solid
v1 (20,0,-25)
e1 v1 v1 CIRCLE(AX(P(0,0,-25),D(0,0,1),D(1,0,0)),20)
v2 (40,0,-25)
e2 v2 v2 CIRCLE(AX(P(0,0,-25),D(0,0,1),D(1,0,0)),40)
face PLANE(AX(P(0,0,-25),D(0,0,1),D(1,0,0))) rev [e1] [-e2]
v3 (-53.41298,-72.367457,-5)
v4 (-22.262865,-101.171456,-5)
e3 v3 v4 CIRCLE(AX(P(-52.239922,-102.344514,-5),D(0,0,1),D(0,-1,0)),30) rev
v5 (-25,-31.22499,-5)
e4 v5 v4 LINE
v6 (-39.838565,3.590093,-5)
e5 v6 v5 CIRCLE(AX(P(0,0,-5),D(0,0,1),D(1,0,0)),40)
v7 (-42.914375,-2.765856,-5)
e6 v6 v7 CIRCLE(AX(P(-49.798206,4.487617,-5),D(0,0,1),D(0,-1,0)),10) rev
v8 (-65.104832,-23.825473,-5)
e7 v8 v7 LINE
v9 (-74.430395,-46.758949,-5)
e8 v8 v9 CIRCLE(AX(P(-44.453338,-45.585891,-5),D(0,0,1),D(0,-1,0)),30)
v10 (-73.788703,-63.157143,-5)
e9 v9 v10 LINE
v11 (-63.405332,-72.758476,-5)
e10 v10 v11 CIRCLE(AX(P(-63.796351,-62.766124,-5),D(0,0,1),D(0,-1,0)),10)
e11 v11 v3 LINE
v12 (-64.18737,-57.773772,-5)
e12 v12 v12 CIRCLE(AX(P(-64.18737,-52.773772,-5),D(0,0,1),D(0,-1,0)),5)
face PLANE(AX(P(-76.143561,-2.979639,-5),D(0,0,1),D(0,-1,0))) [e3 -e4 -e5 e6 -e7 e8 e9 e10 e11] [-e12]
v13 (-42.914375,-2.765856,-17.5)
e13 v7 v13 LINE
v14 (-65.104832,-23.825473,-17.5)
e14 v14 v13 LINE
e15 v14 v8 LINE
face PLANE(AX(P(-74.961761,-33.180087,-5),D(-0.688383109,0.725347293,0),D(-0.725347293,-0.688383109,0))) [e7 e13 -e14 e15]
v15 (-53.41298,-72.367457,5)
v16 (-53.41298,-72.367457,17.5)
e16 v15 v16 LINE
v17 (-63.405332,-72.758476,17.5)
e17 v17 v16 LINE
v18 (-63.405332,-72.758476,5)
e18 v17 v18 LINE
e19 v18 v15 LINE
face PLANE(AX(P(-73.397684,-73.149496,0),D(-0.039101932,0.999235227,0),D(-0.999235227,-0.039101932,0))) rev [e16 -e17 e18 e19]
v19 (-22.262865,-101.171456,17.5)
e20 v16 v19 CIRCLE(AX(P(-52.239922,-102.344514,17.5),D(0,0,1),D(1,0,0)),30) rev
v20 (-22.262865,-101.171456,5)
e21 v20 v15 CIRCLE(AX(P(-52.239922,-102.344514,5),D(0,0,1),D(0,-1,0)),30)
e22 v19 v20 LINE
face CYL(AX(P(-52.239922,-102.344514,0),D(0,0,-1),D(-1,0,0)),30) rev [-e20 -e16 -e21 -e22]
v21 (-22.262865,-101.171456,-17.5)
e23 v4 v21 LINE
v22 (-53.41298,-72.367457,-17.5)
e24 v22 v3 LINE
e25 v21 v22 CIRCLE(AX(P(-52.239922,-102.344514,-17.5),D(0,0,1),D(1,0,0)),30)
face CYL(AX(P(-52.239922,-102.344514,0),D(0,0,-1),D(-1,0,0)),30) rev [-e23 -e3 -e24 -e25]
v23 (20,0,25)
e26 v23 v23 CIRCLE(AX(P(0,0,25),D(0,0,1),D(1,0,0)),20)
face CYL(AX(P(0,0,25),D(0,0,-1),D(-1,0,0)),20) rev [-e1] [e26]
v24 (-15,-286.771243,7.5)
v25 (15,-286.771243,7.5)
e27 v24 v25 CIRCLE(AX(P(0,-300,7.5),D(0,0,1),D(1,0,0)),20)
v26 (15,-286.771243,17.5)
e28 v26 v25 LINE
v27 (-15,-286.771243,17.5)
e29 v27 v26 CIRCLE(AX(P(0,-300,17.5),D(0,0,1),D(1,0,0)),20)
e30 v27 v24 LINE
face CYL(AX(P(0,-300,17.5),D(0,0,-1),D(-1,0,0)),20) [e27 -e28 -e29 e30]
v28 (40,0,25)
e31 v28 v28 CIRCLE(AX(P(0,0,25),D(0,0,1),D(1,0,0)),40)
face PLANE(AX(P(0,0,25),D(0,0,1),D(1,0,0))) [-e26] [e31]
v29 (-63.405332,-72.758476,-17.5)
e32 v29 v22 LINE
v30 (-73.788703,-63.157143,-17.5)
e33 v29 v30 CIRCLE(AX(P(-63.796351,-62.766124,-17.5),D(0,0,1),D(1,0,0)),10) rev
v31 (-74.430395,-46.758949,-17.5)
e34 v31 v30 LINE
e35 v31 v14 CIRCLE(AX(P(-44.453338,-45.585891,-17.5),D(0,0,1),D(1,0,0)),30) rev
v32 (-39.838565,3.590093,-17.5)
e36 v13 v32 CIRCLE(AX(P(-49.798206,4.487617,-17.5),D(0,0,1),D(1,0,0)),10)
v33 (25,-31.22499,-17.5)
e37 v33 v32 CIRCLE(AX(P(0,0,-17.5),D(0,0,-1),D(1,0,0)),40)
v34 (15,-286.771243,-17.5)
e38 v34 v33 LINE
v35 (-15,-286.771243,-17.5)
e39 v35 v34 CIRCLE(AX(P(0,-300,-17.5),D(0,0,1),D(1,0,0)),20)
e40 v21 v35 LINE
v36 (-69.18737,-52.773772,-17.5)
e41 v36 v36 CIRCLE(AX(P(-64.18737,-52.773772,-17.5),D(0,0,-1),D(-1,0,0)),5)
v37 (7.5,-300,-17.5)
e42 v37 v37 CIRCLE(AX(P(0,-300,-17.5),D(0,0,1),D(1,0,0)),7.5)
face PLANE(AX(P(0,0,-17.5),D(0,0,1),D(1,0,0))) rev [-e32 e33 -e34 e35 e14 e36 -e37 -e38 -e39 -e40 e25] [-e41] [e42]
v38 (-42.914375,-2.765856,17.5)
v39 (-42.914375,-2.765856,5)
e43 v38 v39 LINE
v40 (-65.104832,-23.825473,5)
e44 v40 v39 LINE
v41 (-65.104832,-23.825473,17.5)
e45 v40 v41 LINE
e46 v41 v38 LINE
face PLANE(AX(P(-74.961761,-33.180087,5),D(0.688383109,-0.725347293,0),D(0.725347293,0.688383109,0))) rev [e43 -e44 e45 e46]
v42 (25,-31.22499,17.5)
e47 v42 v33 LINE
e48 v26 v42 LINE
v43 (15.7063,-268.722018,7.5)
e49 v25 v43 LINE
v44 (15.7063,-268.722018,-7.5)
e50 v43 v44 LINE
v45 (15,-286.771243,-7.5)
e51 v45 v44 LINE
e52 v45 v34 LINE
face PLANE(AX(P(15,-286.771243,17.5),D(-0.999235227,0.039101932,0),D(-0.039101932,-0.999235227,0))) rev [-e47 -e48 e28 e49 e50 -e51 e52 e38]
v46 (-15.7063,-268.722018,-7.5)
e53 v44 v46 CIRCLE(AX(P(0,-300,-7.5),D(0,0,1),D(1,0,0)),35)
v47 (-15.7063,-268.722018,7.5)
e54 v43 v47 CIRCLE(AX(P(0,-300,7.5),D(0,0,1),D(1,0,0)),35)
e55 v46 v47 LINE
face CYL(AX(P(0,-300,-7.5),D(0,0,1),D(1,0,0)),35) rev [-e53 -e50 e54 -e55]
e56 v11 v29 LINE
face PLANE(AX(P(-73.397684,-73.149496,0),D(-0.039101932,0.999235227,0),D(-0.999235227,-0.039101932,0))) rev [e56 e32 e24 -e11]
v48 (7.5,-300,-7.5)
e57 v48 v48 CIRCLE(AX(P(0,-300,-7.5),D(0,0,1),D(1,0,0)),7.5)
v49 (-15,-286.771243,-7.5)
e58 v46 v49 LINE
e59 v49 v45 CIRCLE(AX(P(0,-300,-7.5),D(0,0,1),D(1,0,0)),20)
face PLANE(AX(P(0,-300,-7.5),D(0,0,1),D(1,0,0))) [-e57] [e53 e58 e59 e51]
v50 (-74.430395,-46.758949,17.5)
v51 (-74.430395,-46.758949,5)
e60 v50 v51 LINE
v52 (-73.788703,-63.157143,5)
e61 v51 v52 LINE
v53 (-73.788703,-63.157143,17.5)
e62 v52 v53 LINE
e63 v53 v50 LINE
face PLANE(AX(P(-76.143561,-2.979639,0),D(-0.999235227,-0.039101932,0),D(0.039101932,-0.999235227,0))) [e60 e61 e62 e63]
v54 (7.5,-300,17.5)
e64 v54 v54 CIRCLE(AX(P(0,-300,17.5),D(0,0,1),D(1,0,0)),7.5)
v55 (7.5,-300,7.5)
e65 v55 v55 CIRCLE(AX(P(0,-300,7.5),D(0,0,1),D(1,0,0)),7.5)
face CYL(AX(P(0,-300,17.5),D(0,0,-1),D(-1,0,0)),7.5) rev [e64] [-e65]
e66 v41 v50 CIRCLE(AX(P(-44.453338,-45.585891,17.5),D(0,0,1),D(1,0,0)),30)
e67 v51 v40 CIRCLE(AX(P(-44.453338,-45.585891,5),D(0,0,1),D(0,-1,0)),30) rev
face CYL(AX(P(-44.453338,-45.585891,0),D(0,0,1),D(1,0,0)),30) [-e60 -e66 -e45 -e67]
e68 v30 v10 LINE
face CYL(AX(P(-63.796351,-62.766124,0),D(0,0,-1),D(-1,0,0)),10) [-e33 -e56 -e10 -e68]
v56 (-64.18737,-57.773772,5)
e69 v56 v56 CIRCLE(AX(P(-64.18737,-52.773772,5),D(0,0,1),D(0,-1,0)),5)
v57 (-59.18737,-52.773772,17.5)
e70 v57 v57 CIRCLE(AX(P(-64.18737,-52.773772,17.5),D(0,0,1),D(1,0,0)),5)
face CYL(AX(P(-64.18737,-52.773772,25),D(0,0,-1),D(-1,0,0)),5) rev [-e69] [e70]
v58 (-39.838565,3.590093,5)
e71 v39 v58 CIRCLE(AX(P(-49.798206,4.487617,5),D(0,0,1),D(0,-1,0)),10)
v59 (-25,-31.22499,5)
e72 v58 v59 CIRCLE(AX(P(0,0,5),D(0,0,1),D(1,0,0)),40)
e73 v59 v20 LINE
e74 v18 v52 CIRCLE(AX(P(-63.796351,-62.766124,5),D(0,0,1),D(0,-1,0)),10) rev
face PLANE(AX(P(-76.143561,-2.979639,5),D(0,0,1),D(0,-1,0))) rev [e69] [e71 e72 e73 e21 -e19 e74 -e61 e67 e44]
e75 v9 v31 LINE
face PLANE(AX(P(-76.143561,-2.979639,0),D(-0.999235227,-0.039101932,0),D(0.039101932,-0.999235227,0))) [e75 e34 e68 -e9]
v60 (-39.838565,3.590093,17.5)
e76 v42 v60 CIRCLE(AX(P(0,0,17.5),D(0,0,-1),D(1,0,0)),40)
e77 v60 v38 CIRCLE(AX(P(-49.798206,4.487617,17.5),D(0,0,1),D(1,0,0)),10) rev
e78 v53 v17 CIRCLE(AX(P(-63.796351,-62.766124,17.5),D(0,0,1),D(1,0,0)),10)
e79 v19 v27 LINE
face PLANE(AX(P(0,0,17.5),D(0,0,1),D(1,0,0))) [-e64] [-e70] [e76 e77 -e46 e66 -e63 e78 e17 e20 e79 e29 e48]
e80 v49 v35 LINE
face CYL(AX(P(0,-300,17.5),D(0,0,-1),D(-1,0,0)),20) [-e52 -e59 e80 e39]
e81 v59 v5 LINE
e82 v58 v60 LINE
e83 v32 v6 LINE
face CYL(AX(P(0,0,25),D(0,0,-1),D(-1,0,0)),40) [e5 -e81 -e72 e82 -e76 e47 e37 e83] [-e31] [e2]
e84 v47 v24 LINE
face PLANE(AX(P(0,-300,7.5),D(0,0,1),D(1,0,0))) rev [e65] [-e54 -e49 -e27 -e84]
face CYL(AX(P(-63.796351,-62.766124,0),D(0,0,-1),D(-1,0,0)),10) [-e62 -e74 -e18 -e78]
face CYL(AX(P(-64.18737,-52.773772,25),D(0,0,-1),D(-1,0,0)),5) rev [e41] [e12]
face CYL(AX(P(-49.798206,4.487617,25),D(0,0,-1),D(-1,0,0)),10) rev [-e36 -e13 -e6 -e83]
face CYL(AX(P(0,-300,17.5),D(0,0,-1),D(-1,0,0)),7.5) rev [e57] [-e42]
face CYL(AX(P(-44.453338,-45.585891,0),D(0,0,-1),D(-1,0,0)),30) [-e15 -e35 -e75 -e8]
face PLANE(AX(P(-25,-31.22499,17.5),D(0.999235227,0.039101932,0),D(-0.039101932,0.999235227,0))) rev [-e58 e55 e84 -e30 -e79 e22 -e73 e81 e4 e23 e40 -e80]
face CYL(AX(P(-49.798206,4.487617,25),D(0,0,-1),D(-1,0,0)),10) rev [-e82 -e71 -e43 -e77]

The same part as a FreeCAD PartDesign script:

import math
import FreeCAD as App
import Part
import Sketcher
from FreeCAD import Vector
Q = App.Units.Quantity


def edges_at(feature, points):
    """Names of the edges that pass closest to the given points."""
    edges = feature.Shape.Edges
    near = lambda p: min(range(len(edges)), key=lambda i: edges[i].distToShape(Part.Vertex(*p))[0])
    return sorted({f"Edge{near(p) + 1}" for p in points})

doc = App.newDocument("Part")
body = doc.addObject("PartDesign::Body", "Body")

# Sketch on XY plane
sketch1 = body.newObject("Sketcher::SketchObject", "Sketch")
sketch1.AttachmentSupport = (doc.getObject("XY_Plane"), [""])
sketch1.MapMode = "FlatFace"
sketch1.addGeometry([
    Part.Circle(Vector(0, 0, 0), Vector(0, 0, 1), 40),
    Part.Circle(Vector(0, 0, 0), Vector(0, 0, 1), 20),
], False)
sketch1.addConstraint([
    Sketcher.Constraint("Coincident", 0, 3, -1, 1),
    Sketcher.Constraint("Coincident", 1, 3, -1, 1),
    Sketcher.Constraint("Diameter", 0, Q("80 mm")),
    Sketcher.Constraint("Diameter", 1, Q("40 mm")),
])
pad1 = body.newObject("PartDesign::Pad", "Pad")
pad1.Profile = sketch1
pad1.Length = 50
pad1.Midplane = True

# Sketch on XY plane
sketch2 = body.newObject("Sketcher::SketchObject", "Sketch001")
sketch2.AttachmentSupport = (doc.getObject("XY_Plane"), [""])
sketch2.MapMode = "FlatFace"
sketch2.addGeometry([
    Part.LineSegment(Vector(-25, -31, 0), Vector(-15, -287, 0)),  # 0
    Part.ArcOfCircle(Part.Circle(Vector(0, -300, 0), Vector(0, 0, 1), 20), math.radians(139), math.radians(401)),  # 1
    Part.LineSegment(Vector(15, -287, 0), Vector(25, -31, 0)),  # 2
    Part.ArcOfCircle(Part.Circle(Vector(0, 0, 0), Vector(0, 0, 1), 40), math.radians(-129), math.radians(-51)),  # 3
    Part.Circle(Vector(0, -300, 0), Vector(0, 0, 1), 8),  # 4
], False)
sketch2.addConstraint([
    Sketcher.Constraint("Coincident", 0, 2, 1, 1),
    Sketcher.Constraint("Coincident", 1, 2, 2, 1),
    Sketcher.Constraint("Coincident", 2, 2, 3, 2),
    Sketcher.Constraint("Coincident", 3, 1, 0, 1),
    Sketcher.Constraint("Coincident", 3, 3, -1, 1),
    Sketcher.Constraint("Coincident", 4, 3, 1, 3),
    Sketcher.Constraint("Symmetric", 0, 2, 1, 2, -2),
    Sketcher.Constraint("Horizontal", 2, 2, 3, 1),
    Sketcher.Constraint("Diameter", 4, Q("15 mm")),
    Sketcher.Constraint("Radius", 1, Q("20 mm")),
    Sketcher.Constraint("Radius", 3, Q("40 mm")),
    Sketcher.Constraint("DistanceY", 1, 3, -1, 1, Q("300 mm")),
    Sketcher.Constraint("DistanceX", 0, 2, -1, 1, Q("15 mm")),
    Sketcher.Constraint("DistanceX", -1, 1, 2, 2, Q("25 mm")),
])
pad2 = body.newObject("PartDesign::Pad", "Pad001")
pad2.Profile = sketch2
pad2.Length = 35
pad2.Midplane = True

# Sketch on XY plane
sketch3 = body.newObject("Sketcher::SketchObject", "Sketch002")
sketch3.AttachmentSupport = (doc.getObject("XY_Plane"), [""])
sketch3.MapMode = "FlatFace"
sketch3.addGeometry(Part.Circle(Vector(0, -300, 0), Vector(0, 0, 1), 35), False)
sketch3.addConstraint([
    Sketcher.Constraint("PointOnObject", 0, 3, -2),
    Sketcher.Constraint("Diameter", 0, Q("70 mm")),
    Sketcher.Constraint("DistanceY", 0, 3, -1, 1, Q("300 mm")),
])
pocket1 = body.newObject("PartDesign::Pocket", "Pocket")
pocket1.Profile = sketch3
pocket1.Length = 15
pocket1.Midplane = True

# Sketch on an angled plane
sketch4 = body.newObject("Sketcher::SketchObject", "Sketch003")
sketch4.Placement = App.Placement(Vector(-26.1818, -1.024542, 0), App.Rotation(Vector(0, 0, 1), Vector(-0.039101932, 0.999235227, 0), Vector(-0.999235227, -0.039101932, 0), "ZXY"))
sketch4.addGeometry([
    Part.LineSegment(Vector(5, -30, 0), Vector(5, -70, 0)),  # 0
    Part.LineSegment(Vector(5, -70, 0), Vector(18, -70, 0)),  # 1
    Part.LineSegment(Vector(18, -70, 0), Vector(18, -30, 0)),  # 2
    Part.LineSegment(Vector(18, -30, 0), Vector(5, -30, 0)),  # 3
    Part.LineSegment(Vector(-18, -30, 0), Vector(-18, -70, 0)),  # 4
    Part.LineSegment(Vector(-18, -70, 0), Vector(-5, -70, 0)),  # 5
    Part.LineSegment(Vector(-5, -70, 0), Vector(-5, -30, 0)),  # 6
    Part.LineSegment(Vector(-5, -30, 0), Vector(-18, -30, 0)),  # 7
], False)
sketch4.addConstraint([
    Sketcher.Constraint("Coincident", 0, 2, 1, 1),
    Sketcher.Constraint("Coincident", 1, 2, 2, 1),
    Sketcher.Constraint("Coincident", 2, 2, 3, 1),
    Sketcher.Constraint("Coincident", 3, 2, 0, 1),
    Sketcher.Constraint("Coincident", 4, 2, 5, 1),
    Sketcher.Constraint("Coincident", 5, 2, 6, 1),
    Sketcher.Constraint("Coincident", 6, 2, 7, 1),
    Sketcher.Constraint("Coincident", 7, 2, 4, 1),
    Sketcher.Constraint("Vertical", 0),
    Sketcher.Constraint("Horizontal", 1),
    Sketcher.Constraint("Vertical", 2),
    Sketcher.Constraint("Horizontal", 3),
    Sketcher.Constraint("Vertical", 4),
    Sketcher.Constraint("Horizontal", 5),
    Sketcher.Constraint("Vertical", 6),
    Sketcher.Constraint("Horizontal", 7),
    Sketcher.Constraint("Symmetric", 1, 2, 4, 2, -2),
    Sketcher.Constraint("Symmetric", 3, 2, 6, 2, -2),
    Sketcher.Constraint("DistanceY", 0, 2, 0, 1, Q("40 mm")),
    Sketcher.Constraint("DistanceX", 1, 1, 1, 2, Q("12.5 mm")),
    Sketcher.Constraint("DistanceX", -1, 1, 0, 2, Q("5 mm")),
    Sketcher.Constraint("DistanceY", 0, 2, -1, 1, Q("70.223562 mm")),
])
pad3 = body.newObject("PartDesign::Pad", "Pad002")
pad3.Profile = sketch4
pad3.Length = 50

# Sketch on XY plane
sketch5 = body.newObject("Sketcher::SketchObject", "Sketch004")
sketch5.AttachmentSupport = (doc.getObject("XY_Plane"), [""])
sketch5.MapMode = "FlatFace"
sketch5.AttachmentOffset = App.Placement(Vector(0, 0, -17.5), App.Rotation())
sketch5.addGeometry(Part.Circle(Vector(-64, -53, 0), Vector(0, 0, 1), 5), False)
sketch5.addConstraint([
    Sketcher.Constraint("Diameter", 0, Q("10 mm")),
    Sketcher.Constraint("DistanceX", 0, 3, -1, 1, Q("64.18737 mm")),
    Sketcher.Constraint("DistanceY", 0, 3, -1, 1, Q("52.773772 mm")),
])
pocket2 = body.newObject("PartDesign::Pocket", "Pocket001")
pocket2.Profile = sketch5
pocket2.Type = "ThroughAll"
pocket2.Reversed = True

# Sketch on XY plane
sketch6 = body.newObject("Sketcher::SketchObject", "Sketch005")
sketch6.AttachmentSupport = (doc.getObject("XY_Plane"), [""])
sketch6.MapMode = "FlatFace"
sketch6.AttachmentOffset = App.Placement(Vector(0, 0, -17.5), App.Rotation())
sketch6.addGeometry([
    Part.LineSegment(Vector(-75, -33, 0), Vector(-40, 0, 0)),
    Part.ArcOfCircle(Part.Circle(Vector(0, 0, 0), Vector(0, 0, 1), 40), math.radians(180), math.radians(231)),
    Part.LineSegment(Vector(-25, -31, 0), Vector(-75, -33, 0)),
], False)
sketch6.addConstraint([
    Sketcher.Constraint("Coincident", 0, 2, 1, 1),
    Sketcher.Constraint("Coincident", 1, 2, 2, 1),
    Sketcher.Constraint("Coincident", 2, 2, 0, 1),
    Sketcher.Constraint("Coincident", 1, 3, -1, 1),
    Sketcher.Constraint("PointOnObject", 0, 2, -1),
    Sketcher.Constraint("Radius", 1, Q("40 mm")),
    Sketcher.Constraint("Distance", 2, Q("50 mm")),
    Sketcher.Constraint("DistanceX", 1, 2, -1, 1, Q("25 mm")),
    Sketcher.Constraint("Distance", 0, Q("48.20003 mm")),
])
pad4 = body.newObject("PartDesign::Pad", "Pad003")
pad4.Profile = sketch6
pad4.Length = 12.5
doc.recompute()

mirrored = body.newObject("PartDesign::Mirrored", "Mirrored")
mirrored.Originals = [pad4]
mirrored.MirrorPlane = (doc.getObject("XY_Plane"), [""])
body.Tip = mirrored
doc.recompute()

fillet = body.newObject("PartDesign::Fillet", "Fillet")
fillet.Base = (mirrored, edges_at(mirrored, [(-73.398, -73.149, 11.25), (-73.398, -73.149, -11.25)]))
fillet.Radius = 10
doc.recompute()

fillet2 = body.newObject("PartDesign::Fillet", "Fillet001")
fillet2.Base = (fillet, edges_at(fillet, [(-23.436, -71.194, 11.25), (-23.436, -71.194, -11.25)]))
fillet2.Radius = 30
doc.recompute()

fillet3 = body.newObject("PartDesign::Fillet", "Fillet002")
fillet3.Base = (fillet2, edges_at(fillet2, [(-40, 0, -11.25), (-40, 0, 11.25)]))
fillet3.Radius = 10
doc.recompute()

fillet4 = body.newObject("PartDesign::Fillet", "Fillet003")
fillet4.Base = (fillet3, edges_at(fillet3, [(-74.962, -33.18, 11.25), (-74.962, -33.18, -11.25)]))
fillet4.Radius = 30

doc.recompute()
